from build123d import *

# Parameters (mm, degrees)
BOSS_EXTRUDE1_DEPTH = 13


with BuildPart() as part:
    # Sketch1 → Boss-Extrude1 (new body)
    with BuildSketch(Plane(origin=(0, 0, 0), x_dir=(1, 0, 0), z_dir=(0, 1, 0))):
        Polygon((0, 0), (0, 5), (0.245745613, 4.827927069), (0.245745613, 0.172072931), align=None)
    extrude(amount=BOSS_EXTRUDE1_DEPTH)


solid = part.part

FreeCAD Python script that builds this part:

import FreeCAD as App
import Part
import Sketcher
Q = App.Units.Quantity

doc = App.newDocument("Part")
body = doc.addObject("PartDesign::Body", "Body")

# Sketch on XZ plane
sketch1 = doc.addObject("Sketcher::SketchObject", "Sketch")
body.addObject(sketch1)
sketch1.AttachmentSupport = (doc.XZ_Plane, [""])
sketch1.MapMode = "FlatFace"
sketch1.addGeometry(Part.LineSegment(App.Vector(0, -5, 0), App.Vector(0, 0, 0)), False)
sketch1.addGeometry(Part.LineSegment(App.Vector(0, 0, 0), App.Vector(0.245746, -0.172073, 0)), False)
sketch1.addGeometry(Part.LineSegment(App.Vector(0.245746, -0.172073, 0), App.Vector(0.245746, -4.827927, 0)), False)
sketch1.addGeometry(Part.LineSegment(App.Vector(0.245746, -4.827927, 0), App.Vector(0, -5, 0)), False)
sketch1.addConstraint(Sketcher.Constraint("Coincident", 0, 2, 1, 1))
sketch1.addConstraint(Sketcher.Constraint("Coincident", 1, 2, 2, 1))
sketch1.addConstraint(Sketcher.Constraint("Coincident", 2, 2, 3, 1))
sketch1.addConstraint(Sketcher.Constraint("Coincident", 3, 2, 0, 1))
sketch1.addConstraint(Sketcher.Constraint("Vertical", 0))
sketch1.addConstraint(Sketcher.Constraint("Vertical", 2))
sketch1.addConstraint(Sketcher.Constraint("Coincident", 0, 2, -1, 1))
sketch1.addConstraint(Sketcher.Constraint("Equal", 1, 3))
sketch1.addConstraint(Sketcher.Constraint("DistanceY", 0, 1, 0, 2, 5.0))
sketch1.addConstraint(Sketcher.Constraint("Angle", 1, Q("-35 deg")))
sketch1.addConstraint(Sketcher.Constraint("Distance", 1, 0.3))
pad1 = doc.addObject("PartDesign::Pad", "Pad")
body.addObject(pad1)
pad1.Profile = sketch1
pad1.Length = 13
pad1.Reversed = True

doc.recompute()
